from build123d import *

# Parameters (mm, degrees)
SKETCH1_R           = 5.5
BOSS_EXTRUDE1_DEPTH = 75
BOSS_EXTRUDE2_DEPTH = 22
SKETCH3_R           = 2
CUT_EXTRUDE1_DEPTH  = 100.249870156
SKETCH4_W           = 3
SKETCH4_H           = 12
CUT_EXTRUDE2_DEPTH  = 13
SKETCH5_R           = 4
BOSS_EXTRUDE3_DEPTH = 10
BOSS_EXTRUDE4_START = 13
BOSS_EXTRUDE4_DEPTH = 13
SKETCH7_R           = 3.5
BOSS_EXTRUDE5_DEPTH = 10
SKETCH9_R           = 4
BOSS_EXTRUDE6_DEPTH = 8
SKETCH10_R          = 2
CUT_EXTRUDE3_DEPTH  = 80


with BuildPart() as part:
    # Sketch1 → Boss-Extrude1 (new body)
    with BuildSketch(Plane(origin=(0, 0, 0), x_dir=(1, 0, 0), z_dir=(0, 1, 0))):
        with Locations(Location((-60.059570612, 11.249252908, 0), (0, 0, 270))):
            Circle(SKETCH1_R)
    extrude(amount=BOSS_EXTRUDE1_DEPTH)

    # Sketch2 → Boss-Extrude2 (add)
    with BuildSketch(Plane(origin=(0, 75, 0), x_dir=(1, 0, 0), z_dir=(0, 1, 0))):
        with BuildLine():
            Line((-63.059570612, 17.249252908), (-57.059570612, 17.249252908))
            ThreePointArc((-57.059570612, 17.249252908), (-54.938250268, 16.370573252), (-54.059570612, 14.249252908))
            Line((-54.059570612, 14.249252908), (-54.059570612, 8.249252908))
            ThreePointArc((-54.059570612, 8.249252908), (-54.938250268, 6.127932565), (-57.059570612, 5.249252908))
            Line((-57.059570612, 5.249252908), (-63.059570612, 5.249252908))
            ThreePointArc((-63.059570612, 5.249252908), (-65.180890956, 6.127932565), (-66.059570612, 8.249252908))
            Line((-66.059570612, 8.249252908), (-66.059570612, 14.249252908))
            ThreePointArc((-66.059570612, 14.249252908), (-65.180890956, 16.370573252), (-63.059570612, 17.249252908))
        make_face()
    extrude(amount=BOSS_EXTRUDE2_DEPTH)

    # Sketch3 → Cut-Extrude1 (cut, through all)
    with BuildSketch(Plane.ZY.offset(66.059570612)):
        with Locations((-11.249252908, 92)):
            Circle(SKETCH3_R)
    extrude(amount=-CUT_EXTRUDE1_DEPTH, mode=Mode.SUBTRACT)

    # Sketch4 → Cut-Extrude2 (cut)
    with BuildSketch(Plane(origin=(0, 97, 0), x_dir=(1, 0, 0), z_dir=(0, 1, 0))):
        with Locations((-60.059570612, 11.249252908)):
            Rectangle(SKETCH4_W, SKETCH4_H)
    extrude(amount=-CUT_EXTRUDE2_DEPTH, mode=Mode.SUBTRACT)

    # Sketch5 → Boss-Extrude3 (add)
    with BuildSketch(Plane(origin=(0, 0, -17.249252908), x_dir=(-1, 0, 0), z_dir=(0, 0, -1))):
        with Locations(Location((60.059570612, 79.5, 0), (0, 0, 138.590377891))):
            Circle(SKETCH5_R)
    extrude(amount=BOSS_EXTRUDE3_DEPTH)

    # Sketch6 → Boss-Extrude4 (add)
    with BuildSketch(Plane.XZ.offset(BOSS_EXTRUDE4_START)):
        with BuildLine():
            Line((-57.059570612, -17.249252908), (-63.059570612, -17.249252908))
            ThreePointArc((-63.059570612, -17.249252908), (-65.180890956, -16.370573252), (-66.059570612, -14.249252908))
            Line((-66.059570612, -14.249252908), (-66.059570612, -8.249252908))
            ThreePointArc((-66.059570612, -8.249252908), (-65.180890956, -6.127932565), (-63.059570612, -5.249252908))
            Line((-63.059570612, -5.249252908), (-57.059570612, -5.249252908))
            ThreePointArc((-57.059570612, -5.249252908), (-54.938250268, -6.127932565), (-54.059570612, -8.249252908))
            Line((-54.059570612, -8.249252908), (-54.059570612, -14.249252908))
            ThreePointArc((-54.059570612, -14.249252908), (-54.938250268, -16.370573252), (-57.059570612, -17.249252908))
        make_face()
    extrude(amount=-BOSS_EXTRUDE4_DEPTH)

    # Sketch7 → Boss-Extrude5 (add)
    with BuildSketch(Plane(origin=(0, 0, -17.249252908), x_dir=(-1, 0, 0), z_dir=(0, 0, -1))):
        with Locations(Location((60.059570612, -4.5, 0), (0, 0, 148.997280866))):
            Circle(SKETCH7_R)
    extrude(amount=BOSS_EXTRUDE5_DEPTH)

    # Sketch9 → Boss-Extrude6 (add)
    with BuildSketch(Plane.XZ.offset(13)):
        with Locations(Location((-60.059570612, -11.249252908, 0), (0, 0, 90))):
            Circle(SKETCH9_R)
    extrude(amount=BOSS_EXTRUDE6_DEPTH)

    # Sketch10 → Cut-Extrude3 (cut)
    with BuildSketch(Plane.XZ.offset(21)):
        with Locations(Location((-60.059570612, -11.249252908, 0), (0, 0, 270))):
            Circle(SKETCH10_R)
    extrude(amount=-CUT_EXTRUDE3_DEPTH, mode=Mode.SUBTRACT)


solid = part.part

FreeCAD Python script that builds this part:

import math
import FreeCAD as App
import Part
import Sketcher

V = App.Vector

doc = App.newDocument("Part")
body = doc.addObject("PartDesign::Body", "Body")

# Sketch on XZ plane
sketch1 = body.newObject("Sketcher::SketchObject", "Sketch")
sketch1.AttachmentSupport = (doc.getObject("XZ_Plane"), [""])
sketch1.MapMode = "FlatFace"
sketch1.addGeometry(Part.Circle(V(-60.059571, -11.249253, 0), V(0, 0, 1), 5.5), False)
sketch1.addConstraint([
    Sketcher.Constraint("Diameter", 0, 11.0),
    Sketcher.Constraint("DistanceX", 0, 3, -1, 1, 60.059571),
    Sketcher.Constraint("DistanceY", 0, 3, -1, 1, 11.249253),
])
pad1 = body.newObject("PartDesign::Pad", "Pad")
pad1.Profile = sketch1
pad1.Length = 75
pad1.Reversed = True

# Sketch on XZ plane
sketch2 = body.newObject("Sketcher::SketchObject", "Sketch001")
sketch2.AttachmentSupport = (doc.getObject("XZ_Plane"), [""])
sketch2.MapMode = "FlatFace"
sketch2.AttachmentOffset = App.Placement(V(0, 0, -75), App.Rotation())
sketch2.addGeometry([
    Part.LineSegment(V(-57.059571, -17.249253, 0), V(-63.059571, -17.249253, 0)),  # 0
    Part.ArcOfCircle(Part.Circle(V(-63.059571, -14.249253, 0), V(0, 0, 1), 3), math.radians(180), math.radians(270)),  # 1
    Part.LineSegment(V(-66.059571, -14.249253, 0), V(-66.059571, -8.249253, 0)),  # 2
    Part.ArcOfCircle(Part.Circle(V(-63.059571, -8.249253, 0), V(0, 0, 1), 3), math.radians(90), math.radians(180)),  # 3
    Part.LineSegment(V(-63.059571, -5.249253, 0), V(-57.059571, -5.249253, 0)),  # 4
    Part.ArcOfCircle(Part.Circle(V(-57.059571, -8.249253, 0), V(0, 0, 1), 3), math.radians(0), math.radians(90)),  # 5
    Part.LineSegment(V(-54.059571, -8.249253, 0), V(-54.059571, -14.249253, 0)),  # 6
    Part.ArcOfCircle(Part.Circle(V(-57.059571, -14.249253, 0), V(0, 0, 1), 3), math.radians(-90), math.radians(0)),  # 7
], False)
sketch2.addConstraint([
    Sketcher.Constraint("Tangent", 0, 2, 1, 2),
    Sketcher.Constraint("Tangent", 1, 1, 2, 1),
    Sketcher.Constraint("Tangent", 2, 2, 3, 2),
    Sketcher.Constraint("Tangent", 3, 1, 4, 1),
    Sketcher.Constraint("Tangent", 4, 2, 5, 2),
    Sketcher.Constraint("Tangent", 5, 1, 6, 1),
    Sketcher.Constraint("Tangent", 6, 2, 7, 2),
    Sketcher.Constraint("Tangent", 7, 1, 0, 1),
    Sketcher.Constraint("Horizontal", 0),
    Sketcher.Constraint("Vertical", 2),
    Sketcher.Constraint("Horizontal", 4),
    Sketcher.Constraint("Vertical", 6),
    Sketcher.Constraint("Equal", 1, 3),
    Sketcher.Constraint("Equal", 3, 5),
    Sketcher.Constraint("Equal", 5, 7),
    Sketcher.Constraint("Equal", 4, 2),
    Sketcher.Constraint("Radius", 1, 3.0),
    Sketcher.Constraint("DistanceX", 0, 2, 0, 1, 6.0),
    Sketcher.Constraint("DistanceX", 1, 3, -1, 1, 63.059571),
    Sketcher.Constraint("DistanceY", 1, 3, -1, 1, 14.249253),
])
pad2 = body.newObject("PartDesign::Pad", "Pad001")
pad2.Profile = sketch2
pad2.Length = 22
pad2.Reversed = True

# Sketch on YZ plane
sketch3 = body.newObject("Sketcher::SketchObject", "Sketch002")
sketch3.AttachmentSupport = (doc.getObject("YZ_Plane"), [""])
sketch3.MapMode = "FlatFace"
sketch3.AttachmentOffset = App.Placement(V(0, 0, -66.059571), App.Rotation())
sketch3.addGeometry(Part.Circle(V(92, -11.249253, 0), V(0, 0, 1), 2), False)
sketch3.addConstraint([
    Sketcher.Constraint("Diameter", 0, 4.0),
    Sketcher.Constraint("DistanceX", -1, 1, 0, 3, 92.0),
    Sketcher.Constraint("DistanceY", 0, 3, -1, 1, 11.249253),
])
pocket1 = body.newObject("PartDesign::Pocket", "Pocket")
pocket1.Profile = sketch3
pocket1.Type = "ThroughAll"
pocket1.Reversed = True

# Sketch on XZ plane
sketch4 = body.newObject("Sketcher::SketchObject", "Sketch003")
sketch4.AttachmentSupport = (doc.getObject("XZ_Plane"), [""])
sketch4.MapMode = "FlatFace"
sketch4.AttachmentOffset = App.Placement(V(0, 0, -97), App.Rotation())
sketch4.addGeometry([
    Part.LineSegment(V(-61.559571, -17.249253, 0), V(-61.559571, -5.249253, 0)),
    Part.LineSegment(V(-61.559571, -5.249253, 0), V(-58.559571, -5.249253, 0)),
    Part.LineSegment(V(-58.559571, -5.249253, 0), V(-58.559571, -17.249253, 0)),
    Part.LineSegment(V(-58.559571, -17.249253, 0), V(-61.559571, -17.249253, 0)),
], False)
sketch4.addConstraint([
    Sketcher.Constraint("Coincident", 0, 2, 1, 1),
    Sketcher.Constraint("Coincident", 1, 2, 2, 1),
    Sketcher.Constraint("Coincident", 2, 2, 3, 1),
    Sketcher.Constraint("Coincident", 3, 2, 0, 1),
    Sketcher.Constraint("Vertical", 0),
    Sketcher.Constraint("Horizontal", 1),
    Sketcher.Constraint("Vertical", 2),
    Sketcher.Constraint("Horizontal", 3),
    Sketcher.Constraint("DistanceX", 1, 1, 1, 2, 3.0),
    Sketcher.Constraint("DistanceY", 0, 1, 0, 2, 12.0),
    Sketcher.Constraint("DistanceX", 0, 2, -1, 1, 61.559571),
    Sketcher.Constraint("DistanceY", 0, 2, -1, 1, 5.249253),
])
pocket2 = body.newObject("PartDesign::Pocket", "Pocket001")
pocket2.Profile = sketch4
pocket2.Length = 13
pocket2.Reversed = True

# Sketch on XY plane
sketch5 = body.newObject("Sketcher::SketchObject", "Sketch004")
sketch5.AttachmentSupport = (doc.getObject("XY_Plane"), [""])
sketch5.MapMode = "FlatFace"
sketch5.AttachmentOffset = App.Placement(V(0, 0, -17.249253), App.Rotation())
sketch5.addGeometry(Part.Circle(V(-60.059571, 79.5, 0), V(0, 0, 1), 4), False)
sketch5.addConstraint([
    Sketcher.Constraint("Diameter", 0, 8.0),
    Sketcher.Constraint("DistanceY", -1, 1, 0, 3, 79.5),
    Sketcher.Constraint("DistanceX", 0, 3, -1, 1, 60.059571),
])
pad3 = body.newObject("PartDesign::Pad", "Pad002")
pad3.Profile = sketch5
pad3.Length = 10
pad3.Reversed = True

# Sketch on XZ plane
sketch6 = body.newObject("Sketcher::SketchObject", "Sketch005")
sketch6.AttachmentSupport = (doc.getObject("XZ_Plane"), [""])
sketch6.MapMode = "FlatFace"
sketch6.AttachmentOffset = App.Placement(V(0, 0, 13), App.Rotation())
sketch6.addGeometry([
    Part.LineSegment(V(-63.059571, -17.249253, 0), V(-57.059571, -17.249253, 0)),  # 0
    Part.ArcOfCircle(Part.Circle(V(-57.059571, -14.249253, 0), V(0, 0, 1), 3), math.radians(-90), math.radians(0)),  # 1
    Part.LineSegment(V(-54.059571, -14.249253, 0), V(-54.059571, -8.249253, 0)),  # 2
    Part.ArcOfCircle(Part.Circle(V(-57.059571, -8.249253, 0), V(0, 0, 1), 3), math.radians(0), math.radians(90)),  # 3
    Part.LineSegment(V(-57.059571, -5.249253, 0), V(-63.059571, -5.249253, 0)),  # 4
    Part.ArcOfCircle(Part.Circle(V(-63.059571, -8.249253, 0), V(0, 0, 1), 3), math.radians(90), math.radians(180)),  # 5
    Part.LineSegment(V(-66.059571, -8.249253, 0), V(-66.059571, -14.249253, 0)),  # 6
    Part.ArcOfCircle(Part.Circle(V(-63.059571, -14.249253, 0), V(0, 0, 1), 3), math.radians(180), math.radians(270)),  # 7
], False)
sketch6.addConstraint([
    Sketcher.Constraint("Tangent", 0, 2, 1, 1),
    Sketcher.Constraint("Tangent", 1, 2, 2, 1),
    Sketcher.Constraint("Tangent", 2, 2, 3, 1),
    Sketcher.Constraint("Tangent", 3, 2, 4, 1),
    Sketcher.Constraint("Tangent", 4, 2, 5, 1),
    Sketcher.Constraint("Tangent", 5, 2, 6, 1),
    Sketcher.Constraint("Tangent", 6, 2, 7, 1),
    Sketcher.Constraint("Tangent", 7, 2, 0, 1),
    Sketcher.Constraint("Horizontal", 0),
    Sketcher.Constraint("Vertical", 2),
    Sketcher.Constraint("Horizontal", 4),
    Sketcher.Constraint("Vertical", 6),
    Sketcher.Constraint("Equal", 1, 3),
    Sketcher.Constraint("Equal", 3, 5),
    Sketcher.Constraint("Equal", 5, 7),
    Sketcher.Constraint("Equal", 4, 2),
    Sketcher.Constraint("Radius", 1, 3.0),
    Sketcher.Constraint("DistanceX", 0, 1, 0, 2, 6.0),
    Sketcher.Constraint("DistanceX", 1, 3, -1, 1, 57.059571),
    Sketcher.Constraint("DistanceY", 1, 3, -1, 1, 14.249253),
])
pad4 = body.newObject("PartDesign::Pad", "Pad003")
pad4.Profile = sketch6
pad4.Length = 13
pad4.Reversed = True

# Sketch on XY plane
sketch7 = body.newObject("Sketcher::SketchObject", "Sketch006")
sketch7.AttachmentSupport = (doc.getObject("XY_Plane"), [""])
sketch7.MapMode = "FlatFace"
sketch7.AttachmentOffset = App.Placement(V(0, 0, -17.249253), App.Rotation())
sketch7.addGeometry(Part.Circle(V(-60.059571, -4.5, 0), V(0, 0, 1), 3.5), False)
sketch7.addConstraint([
    Sketcher.Constraint("Diameter", 0, 7.0),
    Sketcher.Constraint("DistanceY", 0, 3, -1, 1, 4.5),
    Sketcher.Constraint("DistanceX", 0, 3, -1, 1, 60.059571),
])
pad5 = body.newObject("PartDesign::Pad", "Pad004")
pad5.Profile = sketch7
pad5.Length = 10
pad5.Reversed = True

# Sketch on XZ plane
sketch8 = body.newObject("Sketcher::SketchObject", "Sketch007")
sketch8.AttachmentSupport = (doc.getObject("XZ_Plane"), [""])
sketch8.MapMode = "FlatFace"
sketch8.AttachmentOffset = App.Placement(V(0, 0, 13), App.Rotation())
sketch8.addGeometry(Part.Circle(V(-60.059571, -11.249253, 0), V(0, 0, 1), 4), False)
sketch8.addConstraint([
    Sketcher.Constraint("Diameter", 0, 8.0),
    Sketcher.Constraint("DistanceX", 0, 3, -1, 1, 60.059571),
    Sketcher.Constraint("DistanceY", 0, 3, -1, 1, 11.249253),
])
pad6 = body.newObject("PartDesign::Pad", "Pad005")
pad6.Profile = sketch8
pad6.Length = 8

# Sketch on XZ plane
sketch9 = body.newObject("Sketcher::SketchObject", "Sketch008")
sketch9.AttachmentSupport = (doc.getObject("XZ_Plane"), [""])
sketch9.MapMode = "FlatFace"
sketch9.AttachmentOffset = App.Placement(V(0, 0, 21), App.Rotation())
sketch9.addGeometry(Part.Circle(V(-60.059571, -11.249253, 0), V(0, 0, 1), 2), False)
sketch9.addConstraint([
    Sketcher.Constraint("Diameter", 0, 4.0),
    Sketcher.Constraint("DistanceX", 0, 3, -1, 1, 60.059571),
    Sketcher.Constraint("DistanceY", 0, 3, -1, 1, 11.249253),
])
pocket3 = body.newObject("PartDesign::Pocket", "Pocket002")
pocket3.Profile = sketch9
pocket3.Length = 80

doc.recompute()
